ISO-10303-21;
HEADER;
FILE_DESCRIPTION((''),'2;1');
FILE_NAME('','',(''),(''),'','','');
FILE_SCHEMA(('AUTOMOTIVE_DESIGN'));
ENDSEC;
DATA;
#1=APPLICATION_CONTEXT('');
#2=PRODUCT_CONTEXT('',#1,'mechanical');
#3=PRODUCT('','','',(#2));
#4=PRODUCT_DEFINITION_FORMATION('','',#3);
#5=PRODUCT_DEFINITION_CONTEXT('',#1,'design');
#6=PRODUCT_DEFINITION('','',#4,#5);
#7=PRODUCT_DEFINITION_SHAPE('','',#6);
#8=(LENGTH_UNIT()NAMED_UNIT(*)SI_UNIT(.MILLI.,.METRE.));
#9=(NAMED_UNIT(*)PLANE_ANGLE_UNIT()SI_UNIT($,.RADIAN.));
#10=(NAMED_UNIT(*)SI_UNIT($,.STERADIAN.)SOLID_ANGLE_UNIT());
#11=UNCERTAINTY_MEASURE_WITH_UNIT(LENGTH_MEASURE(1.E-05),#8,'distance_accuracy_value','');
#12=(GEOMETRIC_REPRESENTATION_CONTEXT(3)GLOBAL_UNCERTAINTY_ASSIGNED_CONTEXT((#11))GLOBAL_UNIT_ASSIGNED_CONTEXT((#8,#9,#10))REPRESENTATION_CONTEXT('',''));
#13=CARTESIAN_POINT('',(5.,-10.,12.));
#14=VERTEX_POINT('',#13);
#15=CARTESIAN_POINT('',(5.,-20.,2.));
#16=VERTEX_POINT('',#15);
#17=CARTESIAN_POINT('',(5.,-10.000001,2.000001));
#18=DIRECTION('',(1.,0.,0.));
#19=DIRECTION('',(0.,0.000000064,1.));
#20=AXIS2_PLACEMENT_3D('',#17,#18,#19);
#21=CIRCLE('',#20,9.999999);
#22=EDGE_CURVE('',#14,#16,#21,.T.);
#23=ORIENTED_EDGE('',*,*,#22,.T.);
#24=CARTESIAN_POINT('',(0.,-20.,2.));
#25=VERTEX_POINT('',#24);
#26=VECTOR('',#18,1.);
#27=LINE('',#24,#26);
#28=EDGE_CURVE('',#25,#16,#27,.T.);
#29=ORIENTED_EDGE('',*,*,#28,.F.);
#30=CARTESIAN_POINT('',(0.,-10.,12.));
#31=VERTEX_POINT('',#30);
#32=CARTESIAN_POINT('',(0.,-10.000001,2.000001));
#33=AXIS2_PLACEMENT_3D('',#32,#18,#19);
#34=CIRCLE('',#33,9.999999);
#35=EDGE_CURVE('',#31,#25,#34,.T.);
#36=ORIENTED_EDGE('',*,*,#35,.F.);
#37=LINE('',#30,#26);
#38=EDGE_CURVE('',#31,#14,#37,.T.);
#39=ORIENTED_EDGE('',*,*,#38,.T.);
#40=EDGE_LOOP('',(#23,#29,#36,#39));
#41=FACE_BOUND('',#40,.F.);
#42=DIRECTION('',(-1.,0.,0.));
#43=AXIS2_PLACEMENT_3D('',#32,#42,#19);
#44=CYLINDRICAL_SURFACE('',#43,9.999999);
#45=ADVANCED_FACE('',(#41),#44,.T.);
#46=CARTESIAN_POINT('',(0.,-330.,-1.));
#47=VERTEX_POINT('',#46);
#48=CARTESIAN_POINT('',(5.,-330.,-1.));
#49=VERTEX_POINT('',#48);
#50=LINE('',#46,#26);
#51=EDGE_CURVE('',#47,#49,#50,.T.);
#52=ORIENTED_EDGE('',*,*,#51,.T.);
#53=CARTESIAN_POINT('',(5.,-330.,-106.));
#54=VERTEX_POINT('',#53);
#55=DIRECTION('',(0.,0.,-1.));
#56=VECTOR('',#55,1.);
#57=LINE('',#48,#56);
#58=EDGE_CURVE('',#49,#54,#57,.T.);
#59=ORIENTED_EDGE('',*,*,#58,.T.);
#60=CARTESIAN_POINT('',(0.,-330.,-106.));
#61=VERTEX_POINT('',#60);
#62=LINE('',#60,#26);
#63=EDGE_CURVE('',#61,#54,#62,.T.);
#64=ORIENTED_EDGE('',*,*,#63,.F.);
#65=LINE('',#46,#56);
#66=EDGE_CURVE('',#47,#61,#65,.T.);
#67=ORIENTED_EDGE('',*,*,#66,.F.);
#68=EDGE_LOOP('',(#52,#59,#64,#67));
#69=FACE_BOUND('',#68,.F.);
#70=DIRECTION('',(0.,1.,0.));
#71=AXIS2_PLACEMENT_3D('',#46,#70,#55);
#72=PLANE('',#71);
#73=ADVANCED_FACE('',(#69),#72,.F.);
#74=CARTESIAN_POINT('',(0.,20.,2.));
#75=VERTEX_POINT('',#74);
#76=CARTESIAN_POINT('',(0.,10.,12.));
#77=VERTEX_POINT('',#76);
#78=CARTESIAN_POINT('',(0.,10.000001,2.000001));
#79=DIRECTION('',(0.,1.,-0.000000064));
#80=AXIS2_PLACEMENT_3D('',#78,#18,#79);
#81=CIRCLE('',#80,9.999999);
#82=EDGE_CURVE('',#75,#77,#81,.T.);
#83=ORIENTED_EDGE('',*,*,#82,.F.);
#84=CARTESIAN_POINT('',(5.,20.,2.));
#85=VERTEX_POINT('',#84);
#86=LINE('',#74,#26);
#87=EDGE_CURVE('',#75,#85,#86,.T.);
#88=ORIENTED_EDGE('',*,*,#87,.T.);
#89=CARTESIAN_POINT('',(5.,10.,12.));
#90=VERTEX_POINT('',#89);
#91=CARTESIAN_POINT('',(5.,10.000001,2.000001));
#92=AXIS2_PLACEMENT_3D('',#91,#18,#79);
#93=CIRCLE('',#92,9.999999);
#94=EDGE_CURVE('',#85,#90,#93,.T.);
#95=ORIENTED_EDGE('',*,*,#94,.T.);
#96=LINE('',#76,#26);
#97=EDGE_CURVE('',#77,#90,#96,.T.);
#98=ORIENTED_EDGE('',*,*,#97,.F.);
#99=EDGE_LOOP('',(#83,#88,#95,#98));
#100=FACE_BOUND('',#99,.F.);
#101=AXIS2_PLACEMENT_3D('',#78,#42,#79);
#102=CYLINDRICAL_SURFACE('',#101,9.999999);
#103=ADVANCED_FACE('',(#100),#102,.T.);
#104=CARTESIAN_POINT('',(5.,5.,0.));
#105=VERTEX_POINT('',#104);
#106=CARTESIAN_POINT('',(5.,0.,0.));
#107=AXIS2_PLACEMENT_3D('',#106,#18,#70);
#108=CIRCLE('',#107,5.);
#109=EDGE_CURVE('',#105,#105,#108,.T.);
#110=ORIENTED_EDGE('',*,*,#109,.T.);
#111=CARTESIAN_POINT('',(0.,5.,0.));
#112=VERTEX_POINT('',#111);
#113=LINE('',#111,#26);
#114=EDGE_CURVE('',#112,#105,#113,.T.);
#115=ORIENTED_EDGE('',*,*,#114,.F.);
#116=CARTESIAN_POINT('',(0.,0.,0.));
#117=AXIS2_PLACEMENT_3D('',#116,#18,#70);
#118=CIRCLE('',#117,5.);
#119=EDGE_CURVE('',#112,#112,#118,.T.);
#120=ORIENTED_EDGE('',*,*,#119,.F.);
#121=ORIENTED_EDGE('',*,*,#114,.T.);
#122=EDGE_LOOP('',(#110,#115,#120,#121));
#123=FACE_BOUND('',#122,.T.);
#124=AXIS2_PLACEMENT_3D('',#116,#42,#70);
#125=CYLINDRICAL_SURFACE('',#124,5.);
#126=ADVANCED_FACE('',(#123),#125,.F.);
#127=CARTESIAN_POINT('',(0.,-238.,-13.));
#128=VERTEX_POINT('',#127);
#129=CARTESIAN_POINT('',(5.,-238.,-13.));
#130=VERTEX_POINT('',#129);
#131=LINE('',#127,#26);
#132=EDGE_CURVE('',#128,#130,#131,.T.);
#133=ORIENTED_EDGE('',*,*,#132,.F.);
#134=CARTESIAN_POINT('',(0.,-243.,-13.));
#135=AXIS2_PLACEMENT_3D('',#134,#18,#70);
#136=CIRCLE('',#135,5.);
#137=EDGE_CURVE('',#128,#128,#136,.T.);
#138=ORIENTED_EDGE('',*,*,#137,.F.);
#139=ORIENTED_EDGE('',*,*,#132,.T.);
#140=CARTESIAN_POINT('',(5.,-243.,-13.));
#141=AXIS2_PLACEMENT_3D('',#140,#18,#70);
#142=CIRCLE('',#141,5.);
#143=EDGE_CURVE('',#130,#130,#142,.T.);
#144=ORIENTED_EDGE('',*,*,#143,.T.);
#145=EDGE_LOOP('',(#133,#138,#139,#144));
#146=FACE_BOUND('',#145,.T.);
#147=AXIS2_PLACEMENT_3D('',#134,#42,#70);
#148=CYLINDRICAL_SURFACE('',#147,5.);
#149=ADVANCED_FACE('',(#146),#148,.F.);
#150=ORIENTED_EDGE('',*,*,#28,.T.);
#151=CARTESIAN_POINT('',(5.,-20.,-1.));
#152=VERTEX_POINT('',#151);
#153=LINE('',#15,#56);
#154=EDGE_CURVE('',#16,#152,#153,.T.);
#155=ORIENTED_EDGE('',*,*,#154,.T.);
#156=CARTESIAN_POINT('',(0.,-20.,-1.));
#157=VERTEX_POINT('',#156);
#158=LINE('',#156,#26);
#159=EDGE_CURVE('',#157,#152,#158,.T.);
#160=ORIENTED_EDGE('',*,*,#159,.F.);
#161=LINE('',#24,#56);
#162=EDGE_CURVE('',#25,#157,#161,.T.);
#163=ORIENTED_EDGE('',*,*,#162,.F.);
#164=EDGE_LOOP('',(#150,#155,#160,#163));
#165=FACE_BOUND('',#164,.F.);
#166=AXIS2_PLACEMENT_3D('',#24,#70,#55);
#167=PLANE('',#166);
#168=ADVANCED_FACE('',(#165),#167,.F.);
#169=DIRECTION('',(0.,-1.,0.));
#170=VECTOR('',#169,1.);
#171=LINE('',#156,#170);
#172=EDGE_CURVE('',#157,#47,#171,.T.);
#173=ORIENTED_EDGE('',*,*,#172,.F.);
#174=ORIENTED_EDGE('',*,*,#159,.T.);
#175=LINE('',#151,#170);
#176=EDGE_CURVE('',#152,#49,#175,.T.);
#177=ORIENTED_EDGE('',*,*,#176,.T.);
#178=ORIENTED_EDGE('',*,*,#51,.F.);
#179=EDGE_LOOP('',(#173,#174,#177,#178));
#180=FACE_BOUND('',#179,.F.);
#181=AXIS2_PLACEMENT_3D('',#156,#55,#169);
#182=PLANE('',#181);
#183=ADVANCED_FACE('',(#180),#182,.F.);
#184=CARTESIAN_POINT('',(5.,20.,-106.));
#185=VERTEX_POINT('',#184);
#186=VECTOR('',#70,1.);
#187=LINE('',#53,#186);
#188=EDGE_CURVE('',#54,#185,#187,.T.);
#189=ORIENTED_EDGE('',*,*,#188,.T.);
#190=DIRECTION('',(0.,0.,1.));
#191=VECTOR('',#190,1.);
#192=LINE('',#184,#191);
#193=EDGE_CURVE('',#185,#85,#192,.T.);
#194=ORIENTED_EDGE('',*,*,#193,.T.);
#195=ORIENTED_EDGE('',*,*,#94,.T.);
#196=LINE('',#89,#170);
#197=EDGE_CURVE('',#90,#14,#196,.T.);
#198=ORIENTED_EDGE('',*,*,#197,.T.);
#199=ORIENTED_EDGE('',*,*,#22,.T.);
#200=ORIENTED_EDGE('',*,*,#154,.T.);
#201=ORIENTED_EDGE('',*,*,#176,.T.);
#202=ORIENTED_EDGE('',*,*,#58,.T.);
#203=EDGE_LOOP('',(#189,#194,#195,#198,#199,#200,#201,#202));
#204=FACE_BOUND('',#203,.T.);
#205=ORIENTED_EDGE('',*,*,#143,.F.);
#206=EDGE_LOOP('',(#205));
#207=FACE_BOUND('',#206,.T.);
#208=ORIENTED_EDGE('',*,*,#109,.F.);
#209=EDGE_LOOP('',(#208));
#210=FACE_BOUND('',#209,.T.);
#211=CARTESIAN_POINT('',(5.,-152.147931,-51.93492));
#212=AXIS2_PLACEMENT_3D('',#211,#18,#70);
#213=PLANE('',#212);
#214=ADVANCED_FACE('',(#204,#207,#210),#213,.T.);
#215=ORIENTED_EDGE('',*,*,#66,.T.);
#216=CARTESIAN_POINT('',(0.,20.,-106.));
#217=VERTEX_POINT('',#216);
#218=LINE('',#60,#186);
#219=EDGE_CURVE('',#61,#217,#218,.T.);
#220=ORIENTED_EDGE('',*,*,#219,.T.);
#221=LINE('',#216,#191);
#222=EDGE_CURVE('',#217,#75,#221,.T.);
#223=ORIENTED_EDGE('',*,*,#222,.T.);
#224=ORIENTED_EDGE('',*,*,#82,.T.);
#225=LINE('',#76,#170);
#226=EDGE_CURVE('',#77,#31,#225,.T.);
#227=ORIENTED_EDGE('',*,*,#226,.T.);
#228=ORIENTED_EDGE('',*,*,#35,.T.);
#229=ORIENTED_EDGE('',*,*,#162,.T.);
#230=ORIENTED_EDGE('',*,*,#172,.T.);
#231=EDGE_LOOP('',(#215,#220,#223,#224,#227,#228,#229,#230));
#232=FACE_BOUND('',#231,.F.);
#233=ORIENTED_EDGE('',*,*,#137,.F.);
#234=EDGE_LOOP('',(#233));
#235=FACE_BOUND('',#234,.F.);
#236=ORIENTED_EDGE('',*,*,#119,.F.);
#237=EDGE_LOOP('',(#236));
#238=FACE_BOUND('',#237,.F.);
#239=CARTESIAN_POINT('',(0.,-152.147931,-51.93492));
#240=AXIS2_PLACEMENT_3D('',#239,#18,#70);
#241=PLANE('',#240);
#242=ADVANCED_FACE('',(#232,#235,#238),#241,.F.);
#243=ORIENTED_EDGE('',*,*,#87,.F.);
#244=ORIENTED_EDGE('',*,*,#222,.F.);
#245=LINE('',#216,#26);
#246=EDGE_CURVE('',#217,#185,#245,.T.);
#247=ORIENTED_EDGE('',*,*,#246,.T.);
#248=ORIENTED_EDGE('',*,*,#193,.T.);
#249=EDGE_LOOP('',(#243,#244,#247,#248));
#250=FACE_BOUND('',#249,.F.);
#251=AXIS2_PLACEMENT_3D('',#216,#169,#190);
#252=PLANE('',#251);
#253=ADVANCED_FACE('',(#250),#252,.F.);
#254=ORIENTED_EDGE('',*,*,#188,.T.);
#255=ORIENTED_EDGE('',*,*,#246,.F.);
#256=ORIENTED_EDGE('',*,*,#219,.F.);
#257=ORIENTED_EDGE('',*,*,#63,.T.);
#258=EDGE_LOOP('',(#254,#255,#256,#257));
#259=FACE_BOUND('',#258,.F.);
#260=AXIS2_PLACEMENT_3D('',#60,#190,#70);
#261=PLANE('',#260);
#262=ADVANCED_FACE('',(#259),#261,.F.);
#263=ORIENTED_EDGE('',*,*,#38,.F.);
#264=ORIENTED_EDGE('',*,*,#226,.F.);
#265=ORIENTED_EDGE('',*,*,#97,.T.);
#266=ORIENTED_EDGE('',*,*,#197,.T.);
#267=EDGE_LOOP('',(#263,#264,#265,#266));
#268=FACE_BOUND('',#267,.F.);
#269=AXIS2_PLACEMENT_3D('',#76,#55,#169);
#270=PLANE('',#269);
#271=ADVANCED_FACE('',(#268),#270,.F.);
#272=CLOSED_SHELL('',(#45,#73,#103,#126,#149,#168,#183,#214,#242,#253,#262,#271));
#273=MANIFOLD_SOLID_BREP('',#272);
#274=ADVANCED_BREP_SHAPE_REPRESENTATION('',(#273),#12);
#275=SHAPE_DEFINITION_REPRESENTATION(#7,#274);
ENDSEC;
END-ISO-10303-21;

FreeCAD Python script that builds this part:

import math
import FreeCAD as App
import Part
import Sketcher
Q = App.Units.Quantity

doc = App.newDocument("Part")
body = doc.addObject("PartDesign::Body", "Body")

sketch1 = body.newObject("Sketcher::SketchObject", "Sketch")
sketch1.AttachmentSupport = (doc.getObject("YZ_Plane"), [""])
sketch1.MapMode = "FlatFace"
sketch1.addGeometry([
    Part.LineSegment(App.Vector(-20, -1, 0), App.Vector(-330, -1, 0)),
    Part.LineSegment(App.Vector(-330, -1, 0), App.Vector(-330, -106, 0)),
    Part.LineSegment(App.Vector(-330, -106, 0), App.Vector(20, -106, 0)),
    Part.LineSegment(App.Vector(20, -106, 0), App.Vector(20, 2, 0)),
    Part.ArcOfCircle(Part.Circle(App.Vector(10, 2, 0), App.Vector(0, 0, 1), 10), math.radians(0), math.radians(90)),
    Part.LineSegment(App.Vector(10, 12, 0), App.Vector(-10, 12, 0)),
    Part.ArcOfCircle(Part.Circle(App.Vector(-10, 2, 0), App.Vector(0, 0, 1), 10), math.radians(90), math.radians(180)),
    Part.LineSegment(App.Vector(-20, 2, 0), App.Vector(-20, -1, 0)),
    Part.Circle(App.Vector(-243, -13, 0), App.Vector(0, 0, 1), 5),
    Part.Circle(App.Vector(0, 0, 0), App.Vector(0, 0, 1), 5),
], False)
sketch1.addConstraint([
    Sketcher.Constraint("Coincident", 0, 2, 1, 1),
    Sketcher.Constraint("Coincident", 1, 2, 2, 1),
    Sketcher.Constraint("Coincident", 2, 2, 3, 1),
    Sketcher.Constraint("Tangent", 3, 2, 4, 1),
    Sketcher.Constraint("Tangent", 4, 2, 5, 1),
    Sketcher.Constraint("Tangent", 5, 2, 6, 1),
    Sketcher.Constraint("Tangent", 6, 2, 7, 1),
    Sketcher.Constraint("Coincident", 7, 2, 0, 1),
    Sketcher.Constraint("Horizontal", 0),
    Sketcher.Constraint("Vertical", 1),
    Sketcher.Constraint("Horizontal", 2),
    Sketcher.Constraint("Vertical", 3),
    Sketcher.Constraint("Horizontal", 5),
    Sketcher.Constraint("Vertical", 7),
    Sketcher.Constraint("Coincident", 9, 3, -1, 1),
    Sketcher.Constraint("Equal", 4, 6),
    Sketcher.Constraint("Equal", 8, 9),
    Sketcher.Constraint("Diameter", 8, Q("10 mm")),
    Sketcher.Constraint("Radius", 4, Q("9.999999 mm")),
    Sketcher.Constraint("DistanceX", 0, 2, 0, 1, Q("310 mm")),
    Sketcher.Constraint("DistanceX", 2, 1, 2, 2, Q("350 mm")),
    Sketcher.Constraint("DistanceY", 1, 2, 1, 1, Q("105 mm")),
    Sketcher.Constraint("DistanceY", 3, 1, 3, 2, Q("108 mm")),
    Sketcher.Constraint("DistanceX", -1, 1, 4, 3, Q("10.000001 mm")),
    Sketcher.Constraint("DistanceY", -1, 1, 4, 3, Q("2.000001 mm")),
    Sketcher.Constraint("DistanceX", 8, 3, -1, 1, Q("243 mm")),
    Sketcher.Constraint("DistanceY", 8, 3, -1, 1, Q("13 mm")),
])
pad1 = body.newObject("PartDesign::Pad", "Pad")
pad1.Profile = sketch1
pad1.Length = 5

doc.recompute()
